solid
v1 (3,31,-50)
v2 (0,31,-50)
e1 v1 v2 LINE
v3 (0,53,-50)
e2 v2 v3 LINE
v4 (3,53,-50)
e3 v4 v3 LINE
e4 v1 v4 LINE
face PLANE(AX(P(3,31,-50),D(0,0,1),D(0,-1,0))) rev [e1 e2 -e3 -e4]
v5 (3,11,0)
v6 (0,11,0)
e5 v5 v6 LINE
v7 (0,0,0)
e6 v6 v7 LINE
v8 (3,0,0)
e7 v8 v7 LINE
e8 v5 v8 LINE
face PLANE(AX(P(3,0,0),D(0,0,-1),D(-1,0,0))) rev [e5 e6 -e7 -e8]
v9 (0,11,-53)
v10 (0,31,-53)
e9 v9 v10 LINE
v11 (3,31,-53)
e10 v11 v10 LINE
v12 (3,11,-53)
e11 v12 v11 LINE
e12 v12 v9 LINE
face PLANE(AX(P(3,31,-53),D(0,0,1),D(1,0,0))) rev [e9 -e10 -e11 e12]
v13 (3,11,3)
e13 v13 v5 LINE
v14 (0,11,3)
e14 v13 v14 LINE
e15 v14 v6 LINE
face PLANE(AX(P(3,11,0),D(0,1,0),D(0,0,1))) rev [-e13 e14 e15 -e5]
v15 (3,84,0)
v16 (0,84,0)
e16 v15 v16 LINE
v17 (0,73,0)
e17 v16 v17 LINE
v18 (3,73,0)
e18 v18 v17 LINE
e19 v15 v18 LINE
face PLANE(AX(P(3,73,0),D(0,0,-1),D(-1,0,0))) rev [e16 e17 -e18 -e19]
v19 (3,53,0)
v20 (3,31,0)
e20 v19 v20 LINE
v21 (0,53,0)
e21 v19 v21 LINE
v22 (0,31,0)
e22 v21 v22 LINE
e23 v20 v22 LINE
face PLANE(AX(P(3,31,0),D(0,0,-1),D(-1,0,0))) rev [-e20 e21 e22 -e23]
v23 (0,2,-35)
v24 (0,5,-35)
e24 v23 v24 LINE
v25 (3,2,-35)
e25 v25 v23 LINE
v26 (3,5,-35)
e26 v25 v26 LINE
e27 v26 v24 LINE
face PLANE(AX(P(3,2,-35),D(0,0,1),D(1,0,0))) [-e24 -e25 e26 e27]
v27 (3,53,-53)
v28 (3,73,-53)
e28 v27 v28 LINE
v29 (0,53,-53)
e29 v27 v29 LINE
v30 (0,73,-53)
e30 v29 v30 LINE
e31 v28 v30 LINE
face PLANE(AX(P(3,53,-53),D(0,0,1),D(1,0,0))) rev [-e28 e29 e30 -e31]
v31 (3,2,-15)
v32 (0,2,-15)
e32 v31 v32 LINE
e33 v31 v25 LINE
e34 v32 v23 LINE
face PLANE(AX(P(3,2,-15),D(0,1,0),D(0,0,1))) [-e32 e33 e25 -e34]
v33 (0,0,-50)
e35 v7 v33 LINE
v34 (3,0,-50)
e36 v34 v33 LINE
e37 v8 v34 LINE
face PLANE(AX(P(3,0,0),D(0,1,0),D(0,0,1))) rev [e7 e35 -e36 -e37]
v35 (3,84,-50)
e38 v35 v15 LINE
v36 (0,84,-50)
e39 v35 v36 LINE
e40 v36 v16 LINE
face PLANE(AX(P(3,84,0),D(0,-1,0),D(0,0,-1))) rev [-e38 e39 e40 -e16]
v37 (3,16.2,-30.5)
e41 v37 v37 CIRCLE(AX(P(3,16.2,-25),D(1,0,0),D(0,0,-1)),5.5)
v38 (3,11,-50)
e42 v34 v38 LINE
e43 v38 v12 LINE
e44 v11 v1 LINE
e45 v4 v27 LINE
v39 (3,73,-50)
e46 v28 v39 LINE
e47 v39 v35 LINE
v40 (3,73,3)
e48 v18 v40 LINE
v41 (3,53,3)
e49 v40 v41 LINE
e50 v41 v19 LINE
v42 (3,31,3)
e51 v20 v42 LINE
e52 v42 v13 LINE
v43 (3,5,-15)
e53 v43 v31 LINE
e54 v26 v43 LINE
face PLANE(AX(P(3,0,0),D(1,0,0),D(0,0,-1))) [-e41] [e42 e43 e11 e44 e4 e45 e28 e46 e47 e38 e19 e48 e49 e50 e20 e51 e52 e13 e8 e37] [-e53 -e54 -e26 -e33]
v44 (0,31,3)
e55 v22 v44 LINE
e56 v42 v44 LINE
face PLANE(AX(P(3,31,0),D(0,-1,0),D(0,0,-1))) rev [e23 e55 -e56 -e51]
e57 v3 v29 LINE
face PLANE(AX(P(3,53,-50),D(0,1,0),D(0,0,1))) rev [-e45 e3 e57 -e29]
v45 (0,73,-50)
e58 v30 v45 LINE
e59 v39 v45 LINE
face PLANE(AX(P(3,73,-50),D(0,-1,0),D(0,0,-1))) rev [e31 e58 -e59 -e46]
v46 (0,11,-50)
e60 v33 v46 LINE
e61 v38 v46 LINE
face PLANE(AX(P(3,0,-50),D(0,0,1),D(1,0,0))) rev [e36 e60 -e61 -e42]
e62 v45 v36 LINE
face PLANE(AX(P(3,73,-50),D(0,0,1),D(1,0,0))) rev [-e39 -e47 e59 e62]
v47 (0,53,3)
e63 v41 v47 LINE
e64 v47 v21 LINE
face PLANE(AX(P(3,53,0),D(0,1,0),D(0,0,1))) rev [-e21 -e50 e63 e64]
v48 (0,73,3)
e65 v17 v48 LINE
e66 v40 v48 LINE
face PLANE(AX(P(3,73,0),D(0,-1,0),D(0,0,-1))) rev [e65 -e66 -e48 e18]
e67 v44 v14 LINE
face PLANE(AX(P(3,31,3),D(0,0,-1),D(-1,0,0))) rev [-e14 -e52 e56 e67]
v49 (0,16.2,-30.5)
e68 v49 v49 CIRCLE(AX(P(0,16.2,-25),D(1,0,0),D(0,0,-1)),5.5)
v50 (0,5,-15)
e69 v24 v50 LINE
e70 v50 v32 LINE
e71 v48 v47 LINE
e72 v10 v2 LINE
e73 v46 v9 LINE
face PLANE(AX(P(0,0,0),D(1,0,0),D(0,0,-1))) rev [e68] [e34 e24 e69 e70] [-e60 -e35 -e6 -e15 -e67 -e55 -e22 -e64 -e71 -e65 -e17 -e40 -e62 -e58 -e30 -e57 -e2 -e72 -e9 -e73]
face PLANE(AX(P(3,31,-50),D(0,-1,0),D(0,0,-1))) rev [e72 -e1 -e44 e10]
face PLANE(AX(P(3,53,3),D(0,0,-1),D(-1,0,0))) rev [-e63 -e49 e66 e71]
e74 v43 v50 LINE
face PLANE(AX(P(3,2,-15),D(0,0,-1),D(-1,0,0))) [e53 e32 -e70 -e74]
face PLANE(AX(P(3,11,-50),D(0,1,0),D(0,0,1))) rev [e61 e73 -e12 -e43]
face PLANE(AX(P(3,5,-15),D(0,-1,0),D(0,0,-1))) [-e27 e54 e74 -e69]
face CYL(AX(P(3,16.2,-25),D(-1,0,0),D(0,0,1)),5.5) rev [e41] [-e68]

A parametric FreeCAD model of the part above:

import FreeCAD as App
import Part
import Sketcher


def add_polygon(sketch, points):
    """Adds a closed chain of lines whose ends are joined by coincident constraints."""
    first, n = sketch.GeometryCount, len(points)
    for a, b in zip(points, points[1:] + points[:1]):
        sketch.addGeometry(Part.LineSegment(App.Vector(*a, 0), App.Vector(*b, 0)), False)
    for i in range(n):
        sketch.addConstraint(Sketcher.Constraint("Coincident", first + i, 2, first + (i + 1) % n, 1))

doc = App.newDocument("Part")
body = doc.addObject("PartDesign::Body", "Body")

sketch1 = body.newObject("Sketcher::SketchObject", "Sketch")
sketch1.AttachmentSupport = (doc.getObject("YZ_Plane"), [""])
sketch1.MapMode = "FlatFace"
add_polygon(sketch1, [(0, 0), (0, -50), (11, -50), (11, -53), (31, -53), (31, -50), (53, -50), (53, -53), (73, -53), (73, -50), (84, -50), (84, 0), (73, 0), (73, 3), (53, 3), (53, 0), (31, 0), (31, 3), (11, 3), (11, 0)])
add_polygon(sketch1, [(2, -35), (2, -15), (5, -15), (5, -35)])
sketch1.addGeometry(Part.Circle(App.Vector(16.2, -25, 0), App.Vector(0, 0, 1), 5.5), False)
sketch1.addConstraint([
    Sketcher.Constraint("Vertical", 0),
    Sketcher.Constraint("Horizontal", 1),
    Sketcher.Constraint("Vertical", 2),
    Sketcher.Constraint("Horizontal", 3),
    Sketcher.Constraint("Vertical", 4),
    Sketcher.Constraint("Horizontal", 5),
    Sketcher.Constraint("Vertical", 6),
    Sketcher.Constraint("Horizontal", 7),
    Sketcher.Constraint("Vertical", 8),
    Sketcher.Constraint("Horizontal", 9),
    Sketcher.Constraint("Vertical", 10),
    Sketcher.Constraint("Horizontal", 11),
    Sketcher.Constraint("Vertical", 12),
    Sketcher.Constraint("Horizontal", 13),
    Sketcher.Constraint("Vertical", 14),
    Sketcher.Constraint("Horizontal", 15),
    Sketcher.Constraint("Vertical", 16),
    Sketcher.Constraint("Horizontal", 17),
    Sketcher.Constraint("Vertical", 18),
    Sketcher.Constraint("Horizontal", 19),
    Sketcher.Constraint("Vertical", 20),
    Sketcher.Constraint("Horizontal", 21),
    Sketcher.Constraint("Vertical", 22),
    Sketcher.Constraint("Horizontal", 23),
    Sketcher.Constraint("Coincident", 19, 2, -1, 1),
    Sketcher.Constraint("PointOnObject", 10, 2, -1),
    Sketcher.Constraint("PointOnObject", 14, 2, -1),
    Sketcher.Constraint("Horizontal", 1, 2, 4, 2),
    Sketcher.Constraint("Horizontal", 3, 2, 6, 2),
    Sketcher.Constraint("Horizontal", 5, 2, 8, 2),
    Sketcher.Constraint("Horizontal", 13, 2, 16, 2),
    Sketcher.Constraint("Vertical", 8, 2, 11, 2),
    Sketcher.Constraint("Vertical", 6, 2, 13, 2),
    Sketcher.Constraint("Vertical", 4, 2, 15, 2),
    Sketcher.Constraint("Vertical", 2, 2, 17, 2),
    Sketcher.Constraint("Equal", 3, 7),
    Sketcher.Constraint("Equal", 1, 9),
    Sketcher.Constraint("Equal", 23, 2),
    Sketcher.Constraint("Equal", 8, 12),
    Sketcher.Constraint("Equal", 17, 20),
    Sketcher.Constraint("Diameter", 24, 11.0),
    Sketcher.Constraint("DistanceX", 1, 1, 1, 2, 11.0),
    Sketcher.Constraint("DistanceX", 3, 1, 3, 2, 20.0),
    Sketcher.Constraint("DistanceX", 5, 1, 5, 2, 22.0),
    Sketcher.Constraint("DistanceX", 21, 1, 21, 2, 3.0),
    Sketcher.Constraint("DistanceY", 0, 2, 0, 1, 50.0),
    Sketcher.Constraint("DistanceY", 24, 3, -1, 1, 25.0),
    Sketcher.Constraint("DistanceX", -1, 1, 20, 2, 2.0),
    Sketcher.Constraint("DistanceY", 20, 2, -1, 1, 15.0),
    Sketcher.Constraint("DistanceX", -1, 1, 24, 3, 16.2),
])
pad1 = body.newObject("PartDesign::Pad", "Pad")
pad1.Profile = sketch1
pad1.Length = 3

doc.recompute()
